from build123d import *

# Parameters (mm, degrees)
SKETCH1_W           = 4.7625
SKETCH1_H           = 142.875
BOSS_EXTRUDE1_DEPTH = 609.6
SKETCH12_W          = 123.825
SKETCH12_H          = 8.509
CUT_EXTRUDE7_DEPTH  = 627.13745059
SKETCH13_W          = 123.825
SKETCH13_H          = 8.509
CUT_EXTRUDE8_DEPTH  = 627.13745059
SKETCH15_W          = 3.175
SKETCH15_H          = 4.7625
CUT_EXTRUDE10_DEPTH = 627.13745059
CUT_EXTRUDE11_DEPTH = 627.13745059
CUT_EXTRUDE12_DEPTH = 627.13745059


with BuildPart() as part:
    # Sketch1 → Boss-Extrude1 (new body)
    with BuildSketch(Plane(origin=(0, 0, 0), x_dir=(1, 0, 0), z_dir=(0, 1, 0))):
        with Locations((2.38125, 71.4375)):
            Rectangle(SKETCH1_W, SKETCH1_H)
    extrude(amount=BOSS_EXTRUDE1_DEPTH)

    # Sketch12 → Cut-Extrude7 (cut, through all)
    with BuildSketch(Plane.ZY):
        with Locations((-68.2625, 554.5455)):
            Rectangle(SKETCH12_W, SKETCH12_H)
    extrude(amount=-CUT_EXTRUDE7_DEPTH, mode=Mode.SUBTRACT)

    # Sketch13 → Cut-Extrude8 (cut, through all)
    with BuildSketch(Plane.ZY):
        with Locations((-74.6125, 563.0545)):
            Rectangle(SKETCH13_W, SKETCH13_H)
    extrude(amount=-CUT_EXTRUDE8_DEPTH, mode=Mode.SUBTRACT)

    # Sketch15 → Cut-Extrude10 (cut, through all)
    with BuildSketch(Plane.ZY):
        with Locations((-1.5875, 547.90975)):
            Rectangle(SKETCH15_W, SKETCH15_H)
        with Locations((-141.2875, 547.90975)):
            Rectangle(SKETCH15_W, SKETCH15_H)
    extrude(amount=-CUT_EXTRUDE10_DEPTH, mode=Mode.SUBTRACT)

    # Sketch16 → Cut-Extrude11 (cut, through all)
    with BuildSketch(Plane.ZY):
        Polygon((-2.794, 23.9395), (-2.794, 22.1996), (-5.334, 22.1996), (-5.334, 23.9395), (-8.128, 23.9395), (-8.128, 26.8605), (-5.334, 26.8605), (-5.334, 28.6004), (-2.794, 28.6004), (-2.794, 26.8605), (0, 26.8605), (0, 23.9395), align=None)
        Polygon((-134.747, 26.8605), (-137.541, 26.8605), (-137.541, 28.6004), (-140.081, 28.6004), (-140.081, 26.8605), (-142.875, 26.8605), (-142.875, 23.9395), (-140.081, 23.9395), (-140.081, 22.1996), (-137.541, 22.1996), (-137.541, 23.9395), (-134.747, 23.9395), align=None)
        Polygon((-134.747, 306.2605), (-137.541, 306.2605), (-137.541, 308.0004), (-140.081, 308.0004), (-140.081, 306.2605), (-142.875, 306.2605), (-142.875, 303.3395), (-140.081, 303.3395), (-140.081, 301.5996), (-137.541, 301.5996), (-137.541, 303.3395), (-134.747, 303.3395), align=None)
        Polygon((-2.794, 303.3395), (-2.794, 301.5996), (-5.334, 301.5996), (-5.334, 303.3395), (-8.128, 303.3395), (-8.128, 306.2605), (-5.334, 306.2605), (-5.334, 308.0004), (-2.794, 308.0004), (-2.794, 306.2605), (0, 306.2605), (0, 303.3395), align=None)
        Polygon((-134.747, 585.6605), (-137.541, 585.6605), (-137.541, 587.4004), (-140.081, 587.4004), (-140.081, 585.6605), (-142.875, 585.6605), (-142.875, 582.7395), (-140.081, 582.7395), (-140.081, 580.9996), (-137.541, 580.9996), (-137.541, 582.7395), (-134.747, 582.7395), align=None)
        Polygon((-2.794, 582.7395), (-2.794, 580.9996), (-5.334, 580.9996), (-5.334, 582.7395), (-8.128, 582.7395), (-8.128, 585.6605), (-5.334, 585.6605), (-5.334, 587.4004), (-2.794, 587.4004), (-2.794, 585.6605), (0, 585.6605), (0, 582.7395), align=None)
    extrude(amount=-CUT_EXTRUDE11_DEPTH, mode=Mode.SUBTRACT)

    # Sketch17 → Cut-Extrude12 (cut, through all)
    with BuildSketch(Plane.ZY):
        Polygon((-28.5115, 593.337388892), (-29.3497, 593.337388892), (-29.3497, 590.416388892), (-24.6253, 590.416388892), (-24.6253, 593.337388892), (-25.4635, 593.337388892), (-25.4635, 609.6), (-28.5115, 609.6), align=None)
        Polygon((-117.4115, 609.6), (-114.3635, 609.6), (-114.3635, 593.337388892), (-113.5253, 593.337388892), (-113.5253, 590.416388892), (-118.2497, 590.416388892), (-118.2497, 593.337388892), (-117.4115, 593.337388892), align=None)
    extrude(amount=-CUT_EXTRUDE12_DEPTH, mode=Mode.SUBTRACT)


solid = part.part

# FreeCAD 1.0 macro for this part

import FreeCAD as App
import Part
import Sketcher

V = App.Vector
Q = App.Units.Quantity

doc = App.newDocument("Part")
body = doc.addObject("PartDesign::Body", "Body")

sketch1 = body.newObject("Sketcher::SketchObject", "Sketch")
sketch1.AttachmentSupport = (doc.getObject("XZ_Plane"), [""])
sketch1.MapMode = "FlatFace"
sketch1.addGeometry(Part.LineSegment(V(0, -142.875, 0), V(0, 0, 0)), False)
sketch1.addGeometry(Part.LineSegment(V(0, 0, 0), V(4.7625, 0, 0)), False)
sketch1.addGeometry(Part.LineSegment(V(4.7625, 0, 0), V(4.7625, -142.875, 0)), False)
sketch1.addGeometry(Part.LineSegment(V(4.7625, -142.875, 0), V(0, -142.875, 0)), False)
sketch1.addConstraint(Sketcher.Constraint("Coincident", 0, 2, 1, 1))
sketch1.addConstraint(Sketcher.Constraint("Coincident", 1, 2, 2, 1))
sketch1.addConstraint(Sketcher.Constraint("Coincident", 2, 2, 3, 1))
sketch1.addConstraint(Sketcher.Constraint("Coincident", 3, 2, 0, 1))
sketch1.addConstraint(Sketcher.Constraint("Vertical", 0))
sketch1.addConstraint(Sketcher.Constraint("Horizontal", 1))
sketch1.addConstraint(Sketcher.Constraint("Vertical", 2))
sketch1.addConstraint(Sketcher.Constraint("Horizontal", 3))
sketch1.addConstraint(Sketcher.Constraint("Coincident", 0, 2, -1, 1))
sketch1.addConstraint(Sketcher.Constraint("DistanceX", 1, 1, 1, 2, Q("0.1875 in")))
sketch1.addConstraint(Sketcher.Constraint("DistanceY", 0, 1, 0, 2, Q("5.625 in")))
pad1 = body.newObject("PartDesign::Pad", "Pad")
pad1.Profile = sketch1
pad1.Length = Q("24 in")
pad1.Reversed = True

sketch2 = body.newObject("Sketcher::SketchObject", "Sketch001")
sketch2.AttachmentSupport = (doc.getObject("YZ_Plane"), [""])
sketch2.MapMode = "FlatFace"
sketch2.addGeometry(Part.LineSegment(V(558.8, -130.175, 0), V(550.291, -130.175, 0)), False)
sketch2.addGeometry(Part.LineSegment(V(550.291, -130.175, 0), V(550.291, -6.35, 0)), False)
sketch2.addGeometry(Part.LineSegment(V(550.291, -6.35, 0), V(558.8, -6.35, 0)), False)
sketch2.addGeometry(Part.LineSegment(V(558.8, -6.35, 0), V(558.8, -130.175, 0)), False)
sketch2.addConstraint(Sketcher.Constraint("Coincident", 0, 2, 1, 1))
sketch2.addConstraint(Sketcher.Constraint("Coincident", 1, 2, 2, 1))
sketch2.addConstraint(Sketcher.Constraint("Coincident", 2, 2, 3, 1))
sketch2.addConstraint(Sketcher.Constraint("Coincident", 3, 2, 0, 1))
sketch2.addConstraint(Sketcher.Constraint("Horizontal", 0))
sketch2.addConstraint(Sketcher.Constraint("Vertical", 1))
sketch2.addConstraint(Sketcher.Constraint("Horizontal", 2))
sketch2.addConstraint(Sketcher.Constraint("Vertical", 3))
sketch2.addConstraint(Sketcher.Constraint("DistanceX", -1, 1, 2, 2, Q("22 in")))
sketch2.addConstraint(Sketcher.Constraint("DistanceX", 0, 2, 0, 1, Q("0.335 in")))
sketch2.addConstraint(Sketcher.Constraint("DistanceY", 1, 1, 1, 2, Q("4.875 in")))
sketch2.addConstraint(Sketcher.Constraint("DistanceY", 1, 2, -1, 1, Q("0.25 in")))
pocket1 = body.newObject("PartDesign::Pocket", "Pocket")
pocket1.Profile = sketch2
pocket1.Type = "ThroughAll"
pocket1.Reversed = True

sketch3 = body.newObject("Sketcher::SketchObject", "Sketch002")
sketch3.AttachmentSupport = (doc.getObject("YZ_Plane"), [""])
sketch3.MapMode = "FlatFace"
sketch3.addGeometry(Part.LineSegment(V(567.309, -136.525, 0), V(558.8, -136.525, 0)), False)
sketch3.addGeometry(Part.LineSegment(V(558.8, -136.525, 0), V(558.8, -12.7, 0)), False)
sketch3.addGeometry(Part.LineSegment(V(558.8, -12.7, 0), V(567.309, -12.7, 0)), False)
sketch3.addGeometry(Part.LineSegment(V(567.309, -12.7, 0), V(567.309, -136.525, 0)), False)
sketch3.addConstraint(Sketcher.Constraint("Coincident", 0, 2, 1, 1))
sketch3.addConstraint(Sketcher.Constraint("Coincident", 1, 2, 2, 1))
sketch3.addConstraint(Sketcher.Constraint("Coincident", 2, 2, 3, 1))
sketch3.addConstraint(Sketcher.Constraint("Coincident", 3, 2, 0, 1))
sketch3.addConstraint(Sketcher.Constraint("Horizontal", 0))
sketch3.addConstraint(Sketcher.Constraint("Vertical", 1))
sketch3.addConstraint(Sketcher.Constraint("Horizontal", 2))
sketch3.addConstraint(Sketcher.Constraint("Vertical", 3))
sketch3.addConstraint(Sketcher.Constraint("DistanceX", -1, 1, 0, 2, Q("22 in")))
sketch3.addConstraint(Sketcher.Constraint("DistanceY", 1, 2, -1, 1, Q("0.5 in")))
sketch3.addConstraint(Sketcher.Constraint("DistanceX", 0, 2, 0, 1, Q("0.335 in")))
sketch3.addConstraint(Sketcher.Constraint("DistanceY", 1, 1, 1, 2, Q("4.875 in")))
pocket2 = body.newObject("PartDesign::Pocket", "Pocket001")
pocket2.Profile = sketch3
pocket2.Type = "ThroughAll"
pocket2.Reversed = True

sketch4 = body.newObject("Sketcher::SketchObject", "Sketch003")
sketch4.AttachmentSupport = (doc.getObject("YZ_Plane"), [""])
sketch4.MapMode = "FlatFace"
sketch4.addGeometry(Part.LineSegment(V(550.291, -3.175, 0), V(545.5285, -3.175, 0)), False)
sketch4.addGeometry(Part.LineSegment(V(545.5285, -3.175, 0), V(545.5285, 0, 0)), False)
sketch4.addGeometry(Part.LineSegment(V(545.5285, 0, 0), V(550.291, 0, 0)), False)
sketch4.addGeometry(Part.LineSegment(V(550.291, 0, 0), V(550.291, -3.175, 0)), False)
sketch4.addGeometry(Part.LineSegment(V(550.291, -142.875, 0), V(545.5285, -142.875, 0)), False)
sketch4.addGeometry(Part.LineSegment(V(545.5285, -142.875, 0), V(545.5285, -139.7, 0)), False)
sketch4.addGeometry(Part.LineSegment(V(545.5285, -139.7, 0), V(550.291, -139.7, 0)), False)
sketch4.addGeometry(Part.LineSegment(V(550.291, -139.7, 0), V(550.291, -142.875, 0)), False)
sketch4.addConstraint(Sketcher.Constraint("Coincident", 0, 2, 1, 1))
sketch4.addConstraint(Sketcher.Constraint("Coincident", 1, 2, 2, 1))
sketch4.addConstraint(Sketcher.Constraint("Coincident", 2, 2, 3, 1))
sketch4.addConstraint(Sketcher.Constraint("Coincident", 3, 2, 0, 1))
sketch4.addConstraint(Sketcher.Constraint("Coincident", 4, 2, 5, 1))
sketch4.addConstraint(Sketcher.Constraint("Coincident", 5, 2, 6, 1))
sketch4.addConstraint(Sketcher.Constraint("Coincident", 6, 2, 7, 1))
sketch4.addConstraint(Sketcher.Constraint("Coincident", 7, 2, 4, 1))
sketch4.addConstraint(Sketcher.Constraint("Horizontal", 0))
sketch4.addConstraint(Sketcher.Constraint("Vertical", 1))
sketch4.addConstraint(Sketcher.Constraint("Horizontal", 2))
sketch4.addConstraint(Sketcher.Constraint("Vertical", 3))
sketch4.addConstraint(Sketcher.Constraint("Horizontal", 4))
sketch4.addConstraint(Sketcher.Constraint("Vertical", 5))
sketch4.addConstraint(Sketcher.Constraint("Horizontal", 6))
sketch4.addConstraint(Sketcher.Constraint("Vertical", 7))
sketch4.addConstraint(Sketcher.Constraint("PointOnObject", 1, 2, -1))
sketch4.addConstraint(Sketcher.Constraint("Vertical", 1, 2, 4, 2))
sketch4.addConstraint(Sketcher.Constraint("Vertical", 3, 2, 6, 2))
sketch4.addConstraint(Sketcher.Constraint("Equal", 3, 5))
sketch4.addConstraint(Sketcher.Constraint("DistanceY", 5, 2, -1, 1, Q("5.5 in")))
sketch4.addConstraint(Sketcher.Constraint("DistanceX", 0, 2, 0, 1, Q("0.1875 in")))
sketch4.addConstraint(Sketcher.Constraint("DistanceY", 1, 1, 1, 2, Q("0.125 in")))
sketch4.addConstraint(Sketcher.Constraint("DistanceX", -1, 1, 2, 2, Q("21.665 in")))
pocket3 = body.newObject("PartDesign::Pocket", "Pocket002")
pocket3.Profile = sketch4
pocket3.Type = "ThroughAll"
pocket3.Reversed = True

sketch5 = body.newObject("Sketcher::SketchObject", "Sketch004")
sketch5.AttachmentSupport = (doc.getObject("YZ_Plane"), [""])
sketch5.MapMode = "FlatFace"
sketch5.addGeometry(Part.LineSegment(V(22.1996, -2.794, 0), V(23.9395, -2.794, 0)), False)
sketch5.addGeometry(Part.LineSegment(V(23.9395, -2.794, 0), V(23.9395, 0, 0)), False)
sketch5.addGeometry(Part.LineSegment(V(23.9395, 0, 0), V(26.8605, 0, 0)), False)
sketch5.addGeometry(Part.LineSegment(V(26.8605, 0, 0), V(26.8605, -2.794, 0)), False)
sketch5.addGeometry(Part.LineSegment(V(26.8605, -2.794, 0), V(28.6004, -2.794, 0)), False)
sketch5.addGeometry(Part.LineSegment(V(28.6004, -2.794, 0), V(28.6004, -5.334, 0)), False)
sketch5.addGeometry(Part.LineSegment(V(28.6004, -5.334, 0), V(26.8605, -5.334, 0)), False)
sketch5.addGeometry(Part.LineSegment(V(26.8605, -5.334, 0), V(26.8605, -8.128, 0)), False)
sketch5.addGeometry(Part.LineSegment(V(26.8605, -8.128, 0), V(23.9395, -8.128, 0)), False)
sketch5.addGeometry(Part.LineSegment(V(23.9395, -8.128, 0), V(23.9395, -5.334, 0)), False)
sketch5.addGeometry(Part.LineSegment(V(23.9395, -5.334, 0), V(22.1996, -5.334, 0)), False)
sketch5.addGeometry(Part.LineSegment(V(22.1996, -5.334, 0), V(22.1996, -2.794, 0)), False)
sketch5.addGeometry(Part.LineSegment(V(26.8605, -134.747, 0), V(26.8605, -137.541, 0)), False)
sketch5.addGeometry(Part.LineSegment(V(26.8605, -137.541, 0), V(28.6004, -137.541, 0)), False)
sketch5.addGeometry(Part.LineSegment(V(28.6004, -137.541, 0), V(28.6004, -140.081, 0)), False)
sketch5.addGeometry(Part.LineSegment(V(28.6004, -140.081, 0), V(26.8605, -140.081, 0)), False)
sketch5.addGeometry(Part.LineSegment(V(26.8605, -140.081, 0), V(26.8605, -142.875, 0)), False)
sketch5.addGeometry(Part.LineSegment(V(26.8605, -142.875, 0), V(23.9395, -142.875, 0)), False)
sketch5.addGeometry(Part.LineSegment(V(23.9395, -142.875, 0), V(23.9395, -140.081, 0)), False)
sketch5.addGeometry(Part.LineSegment(V(23.9395, -140.081, 0), V(22.1996, -140.081, 0)), False)
sketch5.addGeometry(Part.LineSegment(V(22.1996, -140.081, 0), V(22.1996, -137.541, 0)), False)
sketch5.addGeometry(Part.LineSegment(V(22.1996, -137.541, 0), V(23.9395, -137.541, 0)), False)
sketch5.addGeometry(Part.LineSegment(V(23.9395, -137.541, 0), V(23.9395, -134.747, 0)), False)
sketch5.addGeometry(Part.LineSegment(V(23.9395, -134.747, 0), V(26.8605, -134.747, 0)), False)
sketch5.addGeometry(Part.LineSegment(V(306.2605, -134.747, 0), V(306.2605, -137.541, 0)), False)
sketch5.addGeometry(Part.LineSegment(V(306.2605, -137.541, 0), V(308.0004, -137.541, 0)), False)
sketch5.addGeometry(Part.LineSegment(V(308.0004, -137.541, 0), V(308.0004, -140.081, 0)), False)
sketch5.addGeometry(Part.LineSegment(V(308.0004, -140.081, 0), V(306.2605, -140.081, 0)), False)
sketch5.addGeometry(Part.LineSegment(V(306.2605, -140.081, 0), V(306.2605, -142.875, 0)), False)
sketch5.addGeometry(Part.LineSegment(V(306.2605, -142.875, 0), V(303.3395, -142.875, 0)), False)
sketch5.addGeometry(Part.LineSegment(V(303.3395, -142.875, 0), V(303.3395, -140.081, 0)), False)
sketch5.addGeometry(Part.LineSegment(V(303.3395, -140.081, 0), V(301.5996, -140.081, 0)), False)
sketch5.addGeometry(Part.LineSegment(V(301.5996, -140.081, 0), V(301.5996, -137.541, 0)), False)
sketch5.addGeometry(Part.LineSegment(V(301.5996, -137.541, 0), V(303.3395, -137.541, 0)), False)
sketch5.addGeometry(Part.LineSegment(V(303.3395, -137.541, 0), V(303.3395, -134.747, 0)), False)
sketch5.addGeometry(Part.LineSegment(V(303.3395, -134.747, 0), V(306.2605, -134.747, 0)), False)
sketch5.addGeometry(Part.LineSegment(V(301.5996, -2.794, 0), V(303.3395, -2.794, 0)), False)
sketch5.addGeometry(Part.LineSegment(V(303.3395, -2.794, 0), V(303.3395, 0, 0)), False)
sketch5.addGeometry(Part.LineSegment(V(303.3395, 0, 0), V(306.2605, 0, 0)), False)
sketch5.addGeometry(Part.LineSegment(V(306.2605, 0, 0), V(306.2605, -2.794, 0)), False)
sketch5.addGeometry(Part.LineSegment(V(306.2605, -2.794, 0), V(308.0004, -2.794, 0)), False)
sketch5.addGeometry(Part.LineSegment(V(308.0004, -2.794, 0), V(308.0004, -5.334, 0)), False)
sketch5.addGeometry(Part.LineSegment(V(308.0004, -5.334, 0), V(306.2605, -5.334, 0)), False)
sketch5.addGeometry(Part.LineSegment(V(306.2605, -5.334, 0), V(306.2605, -8.128, 0)), False)
sketch5.addGeometry(Part.LineSegment(V(306.2605, -8.128, 0), V(303.3395, -8.128, 0)), False)
sketch5.addGeometry(Part.LineSegment(V(303.3395, -8.128, 0), V(303.3395, -5.334, 0)), False)
sketch5.addGeometry(Part.LineSegment(V(303.3395, -5.334, 0), V(301.5996, -5.334, 0)), False)
sketch5.addGeometry(Part.LineSegment(V(301.5996, -5.334, 0), V(301.5996, -2.794, 0)), False)
sketch5.addGeometry(Part.LineSegment(V(585.6605, -134.747, 0), V(585.6605, -137.541, 0)), False)
sketch5.addGeometry(Part.LineSegment(V(585.6605, -137.541, 0), V(587.4004, -137.541, 0)), False)
sketch5.addGeometry(Part.LineSegment(V(587.4004, -137.541, 0), V(587.4004, -140.081, 0)), False)
sketch5.addGeometry(Part.LineSegment(V(587.4004, -140.081, 0), V(585.6605, -140.081, 0)), False)
sketch5.addGeometry(Part.LineSegment(V(585.6605, -140.081, 0), V(585.6605, -142.875, 0)), False)
sketch5.addGeometry(Part.LineSegment(V(585.6605, -142.875, 0), V(582.7395, -142.875, 0)), False)
sketch5.addGeometry(Part.LineSegment(V(582.7395, -142.875, 0), V(582.7395, -140.081, 0)), False)
sketch5.addGeometry(Part.LineSegment(V(582.7395, -140.081, 0), V(580.9996, -140.081, 0)), False)
sketch5.addGeometry(Part.LineSegment(V(580.9996, -140.081, 0), V(580.9996, -137.541, 0)), False)
sketch5.addGeometry(Part.LineSegment(V(580.9996, -137.541, 0), V(582.7395, -137.541, 0)), False)
sketch5.addGeometry(Part.LineSegment(V(582.7395, -137.541, 0), V(582.7395, -134.747, 0)), False)
sketch5.addGeometry(Part.LineSegment(V(582.7395, -134.747, 0), V(585.6605, -134.747, 0)), False)
sketch5.addGeometry(Part.LineSegment(V(580.9996, -2.794, 0), V(582.7395, -2.794, 0)), False)
sketch5.addGeometry(Part.LineSegment(V(582.7395, -2.794, 0), V(582.7395, 0, 0)), False)
sketch5.addGeometry(Part.LineSegment(V(582.7395, 0, 0), V(585.6605, 0, 0)), False)
sketch5.addGeometry(Part.LineSegment(V(585.6605, 0, 0), V(585.6605, -2.794, 0)), False)
sketch5.addGeometry(Part.LineSegment(V(585.6605, -2.794, 0), V(587.4004, -2.794, 0)), False)
sketch5.addGeometry(Part.LineSegment(V(587.4004, -2.794, 0), V(587.4004, -5.334, 0)), False)
sketch5.addGeometry(Part.LineSegment(V(587.4004, -5.334, 0), V(585.6605, -5.334, 0)), False)
sketch5.addGeometry(Part.LineSegment(V(585.6605, -5.334, 0), V(585.6605, -8.128, 0)), False)
sketch5.addGeometry(Part.LineSegment(V(585.6605, -8.128, 0), V(582.7395, -8.128, 0)), False)
sketch5.addGeometry(Part.LineSegment(V(582.7395, -8.128, 0), V(582.7395, -5.334, 0)), False)
sketch5.addGeometry(Part.LineSegment(V(582.7395, -5.334, 0), V(580.9996, -5.334, 0)), False)
sketch5.addGeometry(Part.LineSegment(V(580.9996, -5.334, 0), V(580.9996, -2.794, 0)), False)
sketch5.addConstraint(Sketcher.Constraint("Coincident", 0, 2, 1, 1))
sketch5.addConstraint(Sketcher.Constraint("Coincident", 1, 2, 2, 1))
sketch5.addConstraint(Sketcher.Constraint("Coincident", 2, 2, 3, 1))
sketch5.addConstraint(Sketcher.Constraint("Coincident", 3, 2, 4, 1))
sketch5.addConstraint(Sketcher.Constraint("Coincident", 4, 2, 5, 1))
sketch5.addConstraint(Sketcher.Constraint("Coincident", 5, 2, 6, 1))
sketch5.addConstraint(Sketcher.Constraint("Coincident", 6, 2, 7, 1))
sketch5.addConstraint(Sketcher.Constraint("Coincident", 7, 2, 8, 1))
sketch5.addConstraint(Sketcher.Constraint("Coincident", 8, 2, 9, 1))
sketch5.addConstraint(Sketcher.Constraint("Coincident", 9, 2, 10, 1))
sketch5.addConstraint(Sketcher.Constraint("Coincident", 10, 2, 11, 1))
sketch5.addConstraint(Sketcher.Constraint("Coincident", 11, 2, 0, 1))
sketch5.addConstraint(Sketcher.Constraint("Coincident", 12, 2, 13, 1))
sketch5.addConstraint(Sketcher.Constraint("Coincident", 13, 2, 14, 1))
sketch5.addConstraint(Sketcher.Constraint("Coincident", 14, 2, 15, 1))
sketch5.addConstraint(Sketcher.Constraint("Coincident", 15, 2, 16, 1))
sketch5.addConstraint(Sketcher.Constraint("Coincident", 16, 2, 17, 1))
sketch5.addConstraint(Sketcher.Constraint("Coincident", 17, 2, 18, 1))
sketch5.addConstraint(Sketcher.Constraint("Coincident", 18, 2, 19, 1))
sketch5.addConstraint(Sketcher.Constraint("Coincident", 19, 2, 20, 1))
sketch5.addConstraint(Sketcher.Constraint("Coincident", 20, 2, 21, 1))
sketch5.addConstraint(Sketcher.Constraint("Coincident", 21, 2, 22, 1))
sketch5.addConstraint(Sketcher.Constraint("Coincident", 22, 2, 23, 1))
sketch5.addConstraint(Sketcher.Constraint("Coincident", 23, 2, 12, 1))
sketch5.addConstraint(Sketcher.Constraint("Coincident", 24, 2, 25, 1))
sketch5.addConstraint(Sketcher.Constraint("Coincident", 25, 2, 26, 1))
sketch5.addConstraint(Sketcher.Constraint("Coincident", 26, 2, 27, 1))
sketch5.addConstraint(Sketcher.Constraint("Coincident", 27, 2, 28, 1))
sketch5.addConstraint(Sketcher.Constraint("Coincident", 28, 2, 29, 1))
sketch5.addConstraint(Sketcher.Constraint("Coincident", 29, 2, 30, 1))
sketch5.addConstraint(Sketcher.Constraint("Coincident", 30, 2, 31, 1))
sketch5.addConstraint(Sketcher.Constraint("Coincident", 31, 2, 32, 1))
sketch5.addConstraint(Sketcher.Constraint("Coincident", 32, 2, 33, 1))
sketch5.addConstraint(Sketcher.Constraint("Coincident", 33, 2, 34, 1))
sketch5.addConstraint(Sketcher.Constraint("Coincident", 34, 2, 35, 1))
sketch5.addConstraint(Sketcher.Constraint("Coincident", 35, 2, 24, 1))
sketch5.addConstraint(Sketcher.Constraint("Coincident", 36, 2, 37, 1))
sketch5.addConstraint(Sketcher.Constraint("Coincident", 37, 2, 38, 1))
sketch5.addConstraint(Sketcher.Constraint("Coincident", 38, 2, 39, 1))
sketch5.addConstraint(Sketcher.Constraint("Coincident", 39, 2, 40, 1))
sketch5.addConstraint(Sketcher.Constraint("Coincident", 40, 2, 41, 1))
sketch5.addConstraint(Sketcher.Constraint("Coincident", 41, 2, 42, 1))
sketch5.addConstraint(Sketcher.Constraint("Coincident", 42, 2, 43, 1))
sketch5.addConstraint(Sketcher.Constraint("Coincident", 43, 2, 44, 1))
sketch5.addConstraint(Sketcher.Constraint("Coincident", 44, 2, 45, 1))
sketch5.addConstraint(Sketcher.Constraint("Coincident", 45, 2, 46, 1))
sketch5.addConstraint(Sketcher.Constraint("Coincident", 46, 2, 47, 1))
sketch5.addConstraint(Sketcher.Constraint("Coincident", 47, 2, 36, 1))
sketch5.addConstraint(Sketcher.Constraint("Coincident", 48, 2, 49, 1))
sketch5.addConstraint(Sketcher.Constraint("Coincident", 49, 2, 50, 1))
sketch5.addConstraint(Sketcher.Constraint("Coincident", 50, 2, 51, 1))
sketch5.addConstraint(Sketcher.Constraint("Coincident", 51, 2, 52, 1))
sketch5.addConstraint(Sketcher.Constraint("Coincident", 52, 2, 53, 1))
sketch5.addConstraint(Sketcher.Constraint("Coincident", 53, 2, 54, 1))
sketch5.addConstraint(Sketcher.Constraint("Coincident", 54, 2, 55, 1))
sketch5.addConstraint(Sketcher.Constraint("Coincident", 55, 2, 56, 1))
sketch5.addConstraint(Sketcher.Constraint("Coincident", 56, 2, 57, 1))
sketch5.addConstraint(Sketcher.Constraint("Coincident", 57, 2, 58, 1))
sketch5.addConstraint(Sketcher.Constraint("Coincident", 58, 2, 59, 1))
sketch5.addConstraint(Sketcher.Constraint("Coincident", 59, 2, 48, 1))
sketch5.addConstraint(Sketcher.Constraint("Coincident", 60, 2, 61, 1))
sketch5.addConstraint(Sketcher.Constraint("Coincident", 61, 2, 62, 1))
sketch5.addConstraint(Sketcher.Constraint("Coincident", 62, 2, 63, 1))
sketch5.addConstraint(Sketcher.Constraint("Coincident", 63, 2, 64, 1))
sketch5.addConstraint(Sketcher.Constraint("Coincident", 64, 2, 65, 1))
sketch5.addConstraint(Sketcher.Constraint("Coincident", 65, 2, 66, 1))
sketch5.addConstraint(Sketcher.Constraint("Coincident", 66, 2, 67, 1))
sketch5.addConstraint(Sketcher.Constraint("Coincident", 67, 2, 68, 1))
sketch5.addConstraint(Sketcher.Constraint("Coincident", 68, 2, 69, 1))
sketch5.addConstraint(Sketcher.Constraint("Coincident", 69, 2, 70, 1))
sketch5.addConstraint(Sketcher.Constraint("Coincident", 70, 2, 71, 1))
sketch5.addConstraint(Sketcher.Constraint("Coincident", 71, 2, 60, 1))
sketch5.addConstraint(Sketcher.Constraint("Horizontal", 0))
sketch5.addConstraint(Sketcher.Constraint("Vertical", 1))
sketch5.addConstraint(Sketcher.Constraint("Horizontal", 2))
sketch5.addConstraint(Sketcher.Constraint("Vertical", 3))
sketch5.addConstraint(Sketcher.Constraint("Horizontal", 4))
sketch5.addConstraint(Sketcher.Constraint("Vertical", 5))
sketch5.addConstraint(Sketcher.Constraint("Horizontal", 6))
sketch5.addConstraint(Sketcher.Constraint("Vertical", 7))
sketch5.addConstraint(Sketcher.Constraint("Horizontal", 8))
sketch5.addConstraint(Sketcher.Constraint("Vertical", 9))
sketch5.addConstraint(Sketcher.Constraint("Horizontal", 10))
sketch5.addConstraint(Sketcher.Constraint("Vertical", 11))
sketch5.addConstraint(Sketcher.Constraint("Vertical", 12))
sketch5.addConstraint(Sketcher.Constraint("Horizontal", 13))
sketch5.addConstraint(Sketcher.Constraint("Vertical", 14))
sketch5.addConstraint(Sketcher.Constraint("Horizontal", 15))
sketch5.addConstraint(Sketcher.Constraint("Vertical", 16))
sketch5.addConstraint(Sketcher.Constraint("Horizontal", 17))
sketch5.addConstraint(Sketcher.Constraint("Vertical", 18))
sketch5.addConstraint(Sketcher.Constraint("Horizontal", 19))
sketch5.addConstraint(Sketcher.Constraint("Vertical", 20))
sketch5.addConstraint(Sketcher.Constraint("Horizontal", 21))
sketch5.addConstraint(Sketcher.Constraint("Vertical", 22))
sketch5.addConstraint(Sketcher.Constraint("Horizontal", 23))
sketch5.addConstraint(Sketcher.Constraint("Vertical", 24))
sketch5.addConstraint(Sketcher.Constraint("Horizontal", 25))
sketch5.addConstraint(Sketcher.Constraint("Vertical", 26))
sketch5.addConstraint(Sketcher.Constraint("Horizontal", 27))
sketch5.addConstraint(Sketcher.Constraint("Vertical", 28))
sketch5.addConstraint(Sketcher.Constraint("Horizontal", 29))
sketch5.addConstraint(Sketcher.Constraint("Vertical", 30))
sketch5.addConstraint(Sketcher.Constraint("Horizontal", 31))
sketch5.addConstraint(Sketcher.Constraint("Vertical", 32))
sketch5.addConstraint(Sketcher.Constraint("Horizontal", 33))
sketch5.addConstraint(Sketcher.Constraint("Vertical", 34))
sketch5.addConstraint(Sketcher.Constraint("Horizontal", 35))
sketch5.addConstraint(Sketcher.Constraint("Horizontal", 36))
sketch5.addConstraint(Sketcher.Constraint("Vertical", 37))
sketch5.addConstraint(Sketcher.Constraint("Horizontal", 38))
sketch5.addConstraint(Sketcher.Constraint("Vertical", 39))
sketch5.addConstraint(Sketcher.Constraint("Horizontal", 40))
sketch5.addConstraint(Sketcher.Constraint("Vertical", 41))
sketch5.addConstraint(Sketcher.Constraint("Horizontal", 42))
sketch5.addConstraint(Sketcher.Constraint("Vertical", 43))
sketch5.addConstraint(Sketcher.Constraint("Horizontal", 44))
sketch5.addConstraint(Sketcher.Constraint("Vertical", 45))
sketch5.addConstraint(Sketcher.Constraint("Horizontal", 46))
sketch5.addConstraint(Sketcher.Constraint("Vertical", 47))
sketch5.addConstraint(Sketcher.Constraint("Vertical", 48))
sketch5.addConstraint(Sketcher.Constraint("Horizontal", 49))
sketch5.addConstraint(Sketcher.Constraint("Vertical", 50))
sketch5.addConstraint(Sketcher.Constraint("Horizontal", 51))
sketch5.addConstraint(Sketcher.Constraint("Vertical", 52))
sketch5.addConstraint(Sketcher.Constraint("Horizontal", 53))
sketch5.addConstraint(Sketcher.Constraint("Vertical", 54))
sketch5.addConstraint(Sketcher.Constraint("Horizontal", 55))
sketch5.addConstraint(Sketcher.Constraint("Vertical", 56))
sketch5.addConstraint(Sketcher.Constraint("Horizontal", 57))
sketch5.addConstraint(Sketcher.Constraint("Vertical", 58))
sketch5.addConstraint(Sketcher.Constraint("Horizontal", 59))
sketch5.addConstraint(Sketcher.Constraint("Horizontal", 60))
sketch5.addConstraint(Sketcher.Constraint("Vertical", 61))
sketch5.addConstraint(Sketcher.Constraint("Horizontal", 62))
sketch5.addConstraint(Sketcher.Constraint("Vertical", 63))
sketch5.addConstraint(Sketcher.Constraint("Horizontal", 64))
sketch5.addConstraint(Sketcher.Constraint("Vertical", 65))
sketch5.addConstraint(Sketcher.Constraint("Horizontal", 66))
sketch5.addConstraint(Sketcher.Constraint("Vertical", 67))
sketch5.addConstraint(Sketcher.Constraint("Horizontal", 68))
sketch5.addConstraint(Sketcher.Constraint("Vertical", 69))
sketch5.addConstraint(Sketcher.Constraint("Horizontal", 70))
sketch5.addConstraint(Sketcher.Constraint("Vertical", 71))
sketch5.addConstraint(Sketcher.Constraint("PointOnObject", 1, 2, -1))
sketch5.addConstraint(Sketcher.Constraint("PointOnObject", 37, 2, -1))
sketch5.addConstraint(Sketcher.Constraint("PointOnObject", 61, 2, -1))
sketch5.addConstraint(Sketcher.Constraint("Horizontal", 0, 2, 3, 2))
sketch5.addConstraint(Sketcher.Constraint("Horizontal", 6, 2, 9, 2))
sketch5.addConstraint(Sketcher.Constraint("Horizontal", 15, 2, 18, 2))
sketch5.addConstraint(Sketcher.Constraint("Horizontal", 13, 2, 20, 2))
sketch5.addConstraint(Sketcher.Constraint("Horizontal", 21, 2, 24, 2))
sketch5.addConstraint(Sketcher.Constraint("Horizontal", 19, 2, 26, 2))
sketch5.addConstraint(Sketcher.Constraint("Horizontal", 17, 2, 28, 2))
sketch5.addConstraint(Sketcher.Constraint("Horizontal", 27, 2, 30, 2))
sketch5.addConstraint(Sketcher.Constraint("Horizontal", 25, 2, 32, 2))
sketch5.addConstraint(Sketcher.Constraint("Horizontal", 23, 2, 34, 2))
sketch5.addConstraint(Sketcher.Constraint("Horizontal", 11, 2, 36, 2))
sketch5.addConstraint(Sketcher.Constraint("Horizontal", 36, 2, 39, 2))
sketch5.addConstraint(Sketcher.Constraint("Horizontal", 10, 2, 41, 2))
sketch5.addConstraint(Sketcher.Constraint("Horizontal", 8, 2, 43, 2))
sketch5.addConstraint(Sketcher.Constraint("Horizontal", 42, 2, 45, 2))
sketch5.addConstraint(Sketcher.Constraint("Horizontal", 33, 2, 48, 2))
sketch5.addConstraint(Sketcher.Constraint("Horizontal", 31, 2, 50, 2))
sketch5.addConstraint(Sketcher.Constraint("Horizontal", 29, 2, 52, 2))
sketch5.addConstraint(Sketcher.Constraint("Horizontal", 51, 2, 54, 2))
sketch5.addConstraint(Sketcher.Constraint("Horizontal", 49, 2, 56, 2))
sketch5.addConstraint(Sketcher.Constraint("Horizontal", 35, 2, 58, 2))
sketch5.addConstraint(Sketcher.Constraint("Horizontal", 47, 2, 60, 2))
sketch5.addConstraint(Sketcher.Constraint("Horizontal", 60, 2, 63, 2))
sketch5.addConstraint(Sketcher.Constraint("Horizontal", 46, 2, 65, 2))
sketch5.addConstraint(Sketcher.Constraint("Horizontal", 44, 2, 67, 2))
sketch5.addConstraint(Sketcher.Constraint("Horizontal", 66, 2, 69, 2))
sketch5.addConstraint(Sketcher.Constraint("Vertical", 3, 2, 6, 2))
sketch5.addConstraint(Sketcher.Constraint("Vertical", 1, 2, 8, 2))
sketch5.addConstraint(Sketcher.Constraint("Vertical", 7, 2, 12, 2))
sketch5.addConstraint(Sketcher.Constraint("Vertical", 5, 2, 13, 2))
sketch5.addConstraint(Sketcher.Constraint("Vertical", 12, 2, 15, 2))
sketch5.addConstraint(Sketcher.Constraint("Vertical", 9, 2, 17, 2))
sketch5.addConstraint(Sketcher.Constraint("Vertical", 11, 2, 19, 2))
sketch5.addConstraint(Sketcher.Constraint("Vertical", 18, 2, 21, 2))
sketch5.addConstraint(Sketcher.Constraint("Vertical", 24, 2, 27, 2))
sketch5.addConstraint(Sketcher.Constraint("Vertical", 30, 2, 33, 2))
sketch5.addConstraint(Sketcher.Constraint("Vertical", 34, 2, 36, 2))
sketch5.addConstraint(Sketcher.Constraint("Vertical", 35, 2, 38, 2))
sketch5.addConstraint(Sketcher.Constraint("Vertical", 26, 2, 40, 2))
sketch5.addConstraint(Sketcher.Constraint("Vertical", 39, 2, 42, 2))
sketch5.addConstraint(Sketcher.Constraint("Vertical", 37, 2, 44, 2))
sketch5.addConstraint(Sketcher.Constraint("Vertical", 32, 2, 46, 2))
sketch5.addConstraint(Sketcher.Constraint("Vertical", 48, 2, 51, 2))
sketch5.addConstraint(Sketcher.Constraint("Vertical", 54, 2, 57, 2))
sketch5.addConstraint(Sketcher.Constraint("Vertical", 58, 2, 60, 2))
sketch5.addConstraint(Sketcher.Constraint("Vertical", 59, 2, 62, 2))
sketch5.addConstraint(Sketcher.Constraint("Vertical", 50, 2, 64, 2))
sketch5.addConstraint(Sketcher.Constraint("Vertical", 63, 2, 66, 2))
sketch5.addConstraint(Sketcher.Constraint("Vertical", 61, 2, 68, 2))
sketch5.addConstraint(Sketcher.Constraint("Vertical", 56, 2, 70, 2))
sketch5.addConstraint(Sketcher.Constraint("Equal", 0, 4))
sketch5.addConstraint(Sketcher.Constraint("Equal", 21, 25))
sketch5.addConstraint(Sketcher.Constraint("Equal", 23, 29))
sketch5.addConstraint(Sketcher.Constraint("Equal", 27, 31))
sketch5.addConstraint(Sketcher.Constraint("Equal", 46, 49))
sketch5.addConstraint(Sketcher.Constraint("Equal", 44, 53))
sketch5.addConstraint(Sketcher.Constraint("Equal", 51, 55))
sketch5.addConstraint(Sketcher.Constraint("Equal", 3, 7))
sketch5.addConstraint(Sketcher.Constraint("Equal", 9, 12))
sketch5.addConstraint(Sketcher.Constraint("Equal", 11, 14))
sketch5.addConstraint(Sketcher.Constraint("Equal", 12, 16))
sketch5.addConstraint(Sketcher.Constraint("DistanceY", 5, 2, 5, 1, Q("0.1 in")))
sketch5.addConstraint(Sketcher.Constraint("DistanceY", 1, 1, 1, 2, Q("0.11 in")))
sketch5.addConstraint(Sketcher.Constraint("DistanceX", 2, 1, 2, 2, Q("0.115 in")))
sketch5.addConstraint(Sketcher.Constraint("DistanceX", 0, 1, 0, 2, Q("0.0685 in")))
sketch5.addConstraint(Sketcher.Constraint("DistanceX", -1, 1, 4, 2, Q("1.126 in")))
sketch5.addConstraint(Sketcher.Constraint("DistanceY", 12, 2, -1, 1, Q("5.415 in")))
sketch5.addConstraint(Sketcher.Constraint("DistanceX", -1, 1, 25, 2, Q("12.126 in")))
sketch5.addConstraint(Sketcher.Constraint("DistanceX", -1, 1, 49, 2, Q("23.126 in")))
pocket4 = body.newObject("PartDesign::Pocket", "Pocket003")
pocket4.Profile = sketch5
pocket4.Type = "ThroughAll"
pocket4.Reversed = True

sketch6 = body.newObject("Sketcher::SketchObject", "Sketch005")
sketch6.AttachmentSupport = (doc.getObject("YZ_Plane"), [""])
sketch6.MapMode = "FlatFace"
sketch6.addGeometry(Part.LineSegment(V(593.337389, -28.5115, 0), V(593.337389, -29.3497, 0)), False)
sketch6.addGeometry(Part.LineSegment(V(593.337389, -29.3497, 0), V(590.416389, -29.3497, 0)), False)
sketch6.addGeometry(Part.LineSegment(V(590.416389, -29.3497, 0), V(590.416389, -24.6253, 0)), False)
sketch6.addGeometry(Part.LineSegment(V(590.416389, -24.6253, 0), V(593.337389, -24.6253, 0)), False)
sketch6.addGeometry(Part.LineSegment(V(593.337389, -24.6253, 0), V(593.337389, -25.4635, 0)), False)
sketch6.addGeometry(Part.LineSegment(V(593.337389, -25.4635, 0), V(609.6, -25.4635, 0)), False)
sketch6.addGeometry(Part.LineSegment(V(609.6, -25.4635, 0), V(609.6, -28.5115, 0)), False)
sketch6.addGeometry(Part.LineSegment(V(609.6, -28.5115, 0), V(593.337389, -28.5115, 0)), False)
sketch6.addGeometry(Part.LineSegment(V(609.6, -114.3635, 0), V(609.6, -117.4115, 0)), False)
sketch6.addGeometry(Part.LineSegment(V(609.6, -117.4115, 0), V(593.337389, -117.4115, 0)), False)
sketch6.addGeometry(Part.LineSegment(V(593.337389, -117.4115, 0), V(593.337389, -118.2497, 0)), False)
sketch6.addGeometry(Part.LineSegment(V(593.337389, -118.2497, 0), V(590.416389, -118.2497, 0)), False)
sketch6.addGeometry(Part.LineSegment(V(590.416389, -118.2497, 0), V(590.416389, -113.5253, 0)), False)
sketch6.addGeometry(Part.LineSegment(V(590.416389, -113.5253, 0), V(593.337389, -113.5253, 0)), False)
sketch6.addGeometry(Part.LineSegment(V(593.337389, -113.5253, 0), V(593.337389, -114.3635, 0)), False)
sketch6.addGeometry(Part.LineSegment(V(593.337389, -114.3635, 0), V(609.6, -114.3635, 0)), False)
sketch6.addConstraint(Sketcher.Constraint("Coincident", 0, 2, 1, 1))
sketch6.addConstraint(Sketcher.Constraint("Coincident", 1, 2, 2, 1))
sketch6.addConstraint(Sketcher.Constraint("Coincident", 2, 2, 3, 1))
sketch6.addConstraint(Sketcher.Constraint("Coincident", 3, 2, 4, 1))
sketch6.addConstraint(Sketcher.Constraint("Coincident", 4, 2, 5, 1))
sketch6.addConstraint(Sketcher.Constraint("Coincident", 5, 2, 6, 1))
sketch6.addConstraint(Sketcher.Constraint("Coincident", 6, 2, 7, 1))
sketch6.addConstraint(Sketcher.Constraint("Coincident", 7, 2, 0, 1))
sketch6.addConstraint(Sketcher.Constraint("Coincident", 8, 2, 9, 1))
sketch6.addConstraint(Sketcher.Constraint("Coincident", 9, 2, 10, 1))
sketch6.addConstraint(Sketcher.Constraint("Coincident", 10, 2, 11, 1))
sketch6.addConstraint(Sketcher.Constraint("Coincident", 11, 2, 12, 1))
sketch6.addConstraint(Sketcher.Constraint("Coincident", 12, 2, 13, 1))
sketch6.addConstraint(Sketcher.Constraint("Coincident", 13, 2, 14, 1))
sketch6.addConstraint(Sketcher.Constraint("Coincident", 14, 2, 15, 1))
sketch6.addConstraint(Sketcher.Constraint("Coincident", 15, 2, 8, 1))
sketch6.addConstraint(Sketcher.Constraint("Vertical", 0))
sketch6.addConstraint(Sketcher.Constraint("Horizontal", 1))
sketch6.addConstraint(Sketcher.Constraint("Vertical", 2))
sketch6.addConstraint(Sketcher.Constraint("Horizontal", 3))
sketch6.addConstraint(Sketcher.Constraint("Vertical", 4))
sketch6.addConstraint(Sketcher.Constraint("Horizontal", 5))
sketch6.addConstraint(Sketcher.Constraint("Vertical", 6))
sketch6.addConstraint(Sketcher.Constraint("Horizontal", 7))
sketch6.addConstraint(Sketcher.Constraint("Vertical", 8))
sketch6.addConstraint(Sketcher.Constraint("Horizontal", 9))
sketch6.addConstraint(Sketcher.Constraint("Vertical", 10))
sketch6.addConstraint(Sketcher.Constraint("Horizontal", 11))
sketch6.addConstraint(Sketcher.Constraint("Vertical", 12))
sketch6.addConstraint(Sketcher.Constraint("Horizontal", 13))
sketch6.addConstraint(Sketcher.Constraint("Vertical", 14))
sketch6.addConstraint(Sketcher.Constraint("Horizontal", 15))
sketch6.addConstraint(Sketcher.Constraint("Vertical", 0, 2, 3, 2))
sketch6.addConstraint(Sketcher.Constraint("Vertical", 6, 2, 8, 2))
sketch6.addConstraint(Sketcher.Constraint("Vertical", 7, 2, 9, 2))
sketch6.addConstraint(Sketcher.Constraint("Vertical", 2, 2, 11, 2))
sketch6.addConstraint(Sketcher.Constraint("Vertical", 10, 2, 13, 2))
sketch6.addConstraint(Sketcher.Constraint("Equal", 0, 4))
sketch6.addConstraint(Sketcher.Constraint("Equal", 6, 8))
sketch6.addConstraint(Sketcher.Constraint("Equal", 4, 10))
sketch6.addConstraint(Sketcher.Constraint("Equal", 2, 12))
sketch6.addConstraint(Sketcher.Constraint("DistanceX", -1, 1, 5, 2, Q("24 in")))
sketch6.addConstraint(Sketcher.Constraint("DistanceY", 6, 2, 6, 1, Q("0.12 in")))
sketch6.addConstraint(Sketcher.Constraint("DistanceY", 8, 2, 6, 2, Q("3.5 in")))
sketch6.addConstraint(Sketcher.Constraint("DistanceX", 1, 2, 1, 1, Q("0.115 in")))
sketch6.addConstraint(Sketcher.Constraint("DistanceY", 0, 2, 0, 1, Q("0.033 in")))
sketch6.addConstraint(Sketcher.Constraint("DistanceY", 0, 2, -1, 1, Q("1.1555 in")))
sketch6.addConstraint(Sketcher.Constraint("DistanceX", 5, 1, 5, 2, 16.262611))
pocket5 = body.newObject("PartDesign::Pocket", "Pocket004")
pocket5.Profile = sketch6
pocket5.Type = "ThroughAll"
pocket5.Reversed = True

doc.recompute()
